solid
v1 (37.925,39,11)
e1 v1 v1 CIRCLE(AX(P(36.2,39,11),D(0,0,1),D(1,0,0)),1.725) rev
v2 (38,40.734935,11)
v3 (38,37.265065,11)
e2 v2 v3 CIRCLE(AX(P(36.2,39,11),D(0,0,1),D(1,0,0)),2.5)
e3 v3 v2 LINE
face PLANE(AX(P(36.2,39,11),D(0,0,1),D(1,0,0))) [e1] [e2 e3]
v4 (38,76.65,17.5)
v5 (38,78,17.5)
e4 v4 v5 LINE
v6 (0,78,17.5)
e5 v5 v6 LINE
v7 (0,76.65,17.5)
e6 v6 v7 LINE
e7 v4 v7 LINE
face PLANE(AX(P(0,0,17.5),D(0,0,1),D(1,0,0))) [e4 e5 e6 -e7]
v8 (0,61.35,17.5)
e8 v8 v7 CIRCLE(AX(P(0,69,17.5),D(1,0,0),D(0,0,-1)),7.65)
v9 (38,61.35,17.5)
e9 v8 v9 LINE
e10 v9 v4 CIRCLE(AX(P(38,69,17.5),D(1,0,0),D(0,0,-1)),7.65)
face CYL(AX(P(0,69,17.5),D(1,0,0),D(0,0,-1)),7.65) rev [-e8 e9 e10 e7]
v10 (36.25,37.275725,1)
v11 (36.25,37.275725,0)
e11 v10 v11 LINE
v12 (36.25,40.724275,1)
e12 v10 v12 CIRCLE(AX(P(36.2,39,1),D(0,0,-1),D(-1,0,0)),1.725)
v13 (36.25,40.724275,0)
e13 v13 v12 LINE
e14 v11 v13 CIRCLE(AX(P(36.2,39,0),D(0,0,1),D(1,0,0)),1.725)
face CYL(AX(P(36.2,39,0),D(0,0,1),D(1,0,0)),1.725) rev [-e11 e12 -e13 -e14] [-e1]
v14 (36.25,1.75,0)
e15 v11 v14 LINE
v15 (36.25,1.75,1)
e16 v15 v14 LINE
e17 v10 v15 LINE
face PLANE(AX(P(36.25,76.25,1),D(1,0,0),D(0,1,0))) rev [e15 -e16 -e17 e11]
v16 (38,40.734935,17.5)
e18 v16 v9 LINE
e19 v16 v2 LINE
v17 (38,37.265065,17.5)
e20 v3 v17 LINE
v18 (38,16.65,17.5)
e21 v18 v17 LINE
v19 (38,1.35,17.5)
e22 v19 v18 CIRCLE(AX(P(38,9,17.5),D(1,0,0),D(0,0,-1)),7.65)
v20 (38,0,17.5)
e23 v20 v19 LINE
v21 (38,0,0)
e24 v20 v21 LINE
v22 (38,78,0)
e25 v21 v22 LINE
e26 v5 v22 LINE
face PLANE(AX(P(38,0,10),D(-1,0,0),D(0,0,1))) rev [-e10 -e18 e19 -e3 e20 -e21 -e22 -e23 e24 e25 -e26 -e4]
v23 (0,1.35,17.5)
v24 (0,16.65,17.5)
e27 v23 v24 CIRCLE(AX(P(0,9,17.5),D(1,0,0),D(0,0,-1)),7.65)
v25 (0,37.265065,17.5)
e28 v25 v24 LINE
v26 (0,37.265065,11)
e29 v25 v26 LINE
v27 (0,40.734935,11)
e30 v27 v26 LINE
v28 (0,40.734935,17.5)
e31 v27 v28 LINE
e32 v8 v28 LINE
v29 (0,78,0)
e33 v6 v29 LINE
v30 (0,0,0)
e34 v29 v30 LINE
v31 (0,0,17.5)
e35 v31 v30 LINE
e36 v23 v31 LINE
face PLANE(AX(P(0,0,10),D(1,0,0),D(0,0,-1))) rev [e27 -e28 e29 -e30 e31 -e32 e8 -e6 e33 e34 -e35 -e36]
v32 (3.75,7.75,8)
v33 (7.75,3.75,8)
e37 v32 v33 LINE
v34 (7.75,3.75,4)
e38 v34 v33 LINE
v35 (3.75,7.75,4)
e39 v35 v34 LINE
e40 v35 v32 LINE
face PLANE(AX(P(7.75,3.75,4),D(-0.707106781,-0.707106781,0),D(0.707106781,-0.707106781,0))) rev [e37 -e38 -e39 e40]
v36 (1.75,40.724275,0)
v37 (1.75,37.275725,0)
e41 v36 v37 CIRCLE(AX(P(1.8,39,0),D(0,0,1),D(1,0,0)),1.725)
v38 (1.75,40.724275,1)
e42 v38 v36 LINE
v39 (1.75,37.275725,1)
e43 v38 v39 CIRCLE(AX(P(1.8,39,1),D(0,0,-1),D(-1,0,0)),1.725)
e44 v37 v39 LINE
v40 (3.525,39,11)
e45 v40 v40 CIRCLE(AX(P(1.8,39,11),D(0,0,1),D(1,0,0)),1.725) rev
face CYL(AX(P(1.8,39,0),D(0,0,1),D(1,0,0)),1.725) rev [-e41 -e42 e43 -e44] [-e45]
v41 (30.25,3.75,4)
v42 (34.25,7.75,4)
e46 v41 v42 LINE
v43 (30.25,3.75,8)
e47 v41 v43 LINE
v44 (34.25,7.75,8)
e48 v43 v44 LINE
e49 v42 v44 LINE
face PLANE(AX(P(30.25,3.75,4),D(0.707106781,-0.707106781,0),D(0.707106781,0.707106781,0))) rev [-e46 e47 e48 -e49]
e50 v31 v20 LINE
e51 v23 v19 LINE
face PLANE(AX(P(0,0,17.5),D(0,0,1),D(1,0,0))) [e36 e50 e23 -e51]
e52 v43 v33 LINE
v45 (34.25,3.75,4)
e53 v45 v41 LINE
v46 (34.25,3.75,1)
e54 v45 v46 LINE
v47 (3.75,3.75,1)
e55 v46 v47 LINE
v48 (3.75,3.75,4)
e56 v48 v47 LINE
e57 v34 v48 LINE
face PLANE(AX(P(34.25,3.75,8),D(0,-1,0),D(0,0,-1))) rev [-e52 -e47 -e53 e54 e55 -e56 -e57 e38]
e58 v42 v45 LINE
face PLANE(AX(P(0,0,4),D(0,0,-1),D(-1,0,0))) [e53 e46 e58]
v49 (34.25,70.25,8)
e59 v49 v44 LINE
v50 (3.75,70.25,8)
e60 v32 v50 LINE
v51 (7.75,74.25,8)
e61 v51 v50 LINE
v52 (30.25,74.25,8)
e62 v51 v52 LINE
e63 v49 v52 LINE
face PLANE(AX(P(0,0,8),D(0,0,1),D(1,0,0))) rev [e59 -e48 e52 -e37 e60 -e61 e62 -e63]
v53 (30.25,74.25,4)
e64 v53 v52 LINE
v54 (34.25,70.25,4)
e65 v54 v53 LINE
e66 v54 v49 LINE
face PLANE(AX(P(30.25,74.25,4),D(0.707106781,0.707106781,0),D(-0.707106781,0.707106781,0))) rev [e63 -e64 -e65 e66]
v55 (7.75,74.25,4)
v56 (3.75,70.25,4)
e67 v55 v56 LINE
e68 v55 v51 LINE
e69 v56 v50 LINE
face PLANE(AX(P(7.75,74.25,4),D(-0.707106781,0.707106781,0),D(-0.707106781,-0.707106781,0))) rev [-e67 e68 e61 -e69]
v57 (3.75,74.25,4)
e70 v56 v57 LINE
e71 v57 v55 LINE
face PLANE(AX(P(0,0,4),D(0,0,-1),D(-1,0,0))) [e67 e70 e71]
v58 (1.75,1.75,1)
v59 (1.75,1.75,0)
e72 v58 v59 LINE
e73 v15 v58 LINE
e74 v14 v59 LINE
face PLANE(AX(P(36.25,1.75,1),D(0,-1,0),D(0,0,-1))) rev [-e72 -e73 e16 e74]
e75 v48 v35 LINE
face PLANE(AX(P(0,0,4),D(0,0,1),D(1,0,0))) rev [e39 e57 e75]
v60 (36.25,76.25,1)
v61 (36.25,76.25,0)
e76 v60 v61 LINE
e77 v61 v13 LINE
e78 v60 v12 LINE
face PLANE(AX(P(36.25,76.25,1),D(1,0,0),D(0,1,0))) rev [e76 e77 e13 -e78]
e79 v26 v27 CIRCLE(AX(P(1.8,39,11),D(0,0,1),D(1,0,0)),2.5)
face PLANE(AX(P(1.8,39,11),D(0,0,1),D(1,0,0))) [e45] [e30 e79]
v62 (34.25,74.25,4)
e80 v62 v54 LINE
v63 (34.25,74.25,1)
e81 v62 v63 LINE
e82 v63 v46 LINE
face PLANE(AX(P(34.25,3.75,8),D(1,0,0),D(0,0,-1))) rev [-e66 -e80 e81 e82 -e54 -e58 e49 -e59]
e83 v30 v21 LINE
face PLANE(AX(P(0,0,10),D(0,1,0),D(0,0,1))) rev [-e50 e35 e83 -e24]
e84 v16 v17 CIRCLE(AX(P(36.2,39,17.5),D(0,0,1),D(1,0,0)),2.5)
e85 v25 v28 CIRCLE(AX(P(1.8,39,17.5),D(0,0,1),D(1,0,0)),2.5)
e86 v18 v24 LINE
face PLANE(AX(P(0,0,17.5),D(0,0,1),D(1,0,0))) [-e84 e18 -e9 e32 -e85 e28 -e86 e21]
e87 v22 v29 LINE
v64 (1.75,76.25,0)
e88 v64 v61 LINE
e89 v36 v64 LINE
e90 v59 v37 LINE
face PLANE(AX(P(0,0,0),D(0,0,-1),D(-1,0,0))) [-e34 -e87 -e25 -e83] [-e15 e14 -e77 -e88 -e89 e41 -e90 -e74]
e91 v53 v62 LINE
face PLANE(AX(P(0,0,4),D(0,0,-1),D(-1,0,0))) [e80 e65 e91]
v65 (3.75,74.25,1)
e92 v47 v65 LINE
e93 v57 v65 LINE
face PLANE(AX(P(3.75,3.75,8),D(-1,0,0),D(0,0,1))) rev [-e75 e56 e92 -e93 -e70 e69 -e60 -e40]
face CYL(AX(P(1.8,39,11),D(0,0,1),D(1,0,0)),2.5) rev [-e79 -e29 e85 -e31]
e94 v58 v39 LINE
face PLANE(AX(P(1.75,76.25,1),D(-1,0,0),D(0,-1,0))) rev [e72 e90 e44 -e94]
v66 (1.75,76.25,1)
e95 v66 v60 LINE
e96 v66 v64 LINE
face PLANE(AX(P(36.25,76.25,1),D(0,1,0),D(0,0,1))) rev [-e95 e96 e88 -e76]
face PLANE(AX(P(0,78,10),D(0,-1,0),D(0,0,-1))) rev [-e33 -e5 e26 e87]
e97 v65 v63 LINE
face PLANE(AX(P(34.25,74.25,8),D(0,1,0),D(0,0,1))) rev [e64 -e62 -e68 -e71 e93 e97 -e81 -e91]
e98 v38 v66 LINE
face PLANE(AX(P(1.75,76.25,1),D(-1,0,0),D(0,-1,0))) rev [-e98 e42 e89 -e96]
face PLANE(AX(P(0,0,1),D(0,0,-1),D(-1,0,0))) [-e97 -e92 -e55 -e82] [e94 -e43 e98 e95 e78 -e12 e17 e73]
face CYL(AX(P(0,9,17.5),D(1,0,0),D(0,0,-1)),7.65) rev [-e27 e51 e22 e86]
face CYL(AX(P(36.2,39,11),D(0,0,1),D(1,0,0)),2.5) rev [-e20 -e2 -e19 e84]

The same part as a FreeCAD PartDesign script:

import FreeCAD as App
import Part
import Sketcher
from FreeCAD import Vector
Q = App.Units.Quantity


def add_polygon(sketch, points):
    """Adds a closed chain of lines whose ends are joined by coincident constraints."""
    first, n = sketch.GeometryCount, len(points)
    for a, b in zip(points, points[1:] + points[:1]):
        sketch.addGeometry(Part.LineSegment(App.Vector(*a, 0), App.Vector(*b, 0)), False)
    for i in range(n):
        sketch.addConstraint(Sketcher.Constraint("Coincident", first + i, 2, first + (i + 1) % n, 1))

doc = App.newDocument("Part")
params = doc.addObject("Spreadsheet::Sheet", "Params")
for row, (alias, value) in enumerate([
    ("sketch1_width", "38 mm"),
    ("sketch1_height", "78 mm"),
    ("pad1_length", "10 mm"),
    ("sketch2_width", "30.5 mm"),
    ("sketch2_height", "70.5 mm"),
    ("pocket1_length", "8 mm"),
    ("sketch3_width", "4 mm"),
    ("pad2_length", "4 mm"),
    ("sketch4_width", "38 mm"),
    ("sketch4_height", "78 mm"),
    ("pad3_length", "7.5 mm"),
    ("sketch5_diameter", "15.3 mm"),
    ("sketch6_width", "34.5 mm"),
    ("sketch6_width2", "30.5 mm"),
    ("sketch6_height", "74.5 mm"),
    ("sketch6_height2", "70.5 mm"),
    ("pocket3_length", "1 mm"),
    ("sketch7_diameter", "3.45 mm"),
    ("sketch8_diameter", "5 mm"),
    ("pocket5_length", "6.5 mm"),
], start=1):
    params.set(f"A{row}", alias)
    params.set(f"B{row}", "=" + value)
    params.setAlias(f"B{row}", alias)

body = doc.addObject("PartDesign::Body", "Body")

sketch1 = body.newObject("Sketcher::SketchObject", "Sketch")
sketch1.AttachmentSupport = (doc.getObject("XY_Plane"), [""])
sketch1.MapMode = "FlatFace"
add_polygon(sketch1, [(0, 78), (0, 0), (38, 0), (38, 78)])
sketch1.addConstraint([
    Sketcher.Constraint("Vertical", 0),
    Sketcher.Constraint("Horizontal", 1),
    Sketcher.Constraint("Vertical", 2),
    Sketcher.Constraint("Horizontal", 3),
    Sketcher.Constraint("Coincident", 0, 2, -1, 1),
    Sketcher.Constraint("DistanceX", 1, 1, 1, 2, Q("38 mm")),
    Sketcher.Constraint("DistanceY", 0, 2, 0, 1, Q("78 mm")),
])
sketch1.setExpression("Constraints[9]", "Params.sketch1_width")
sketch1.setExpression("Constraints[10]", "Params.sketch1_height")
pad1 = body.newObject("PartDesign::Pad", "Pad")
pad1.Profile = sketch1
pad1.setExpression("Length", "Params.pad1_length")

sketch2 = body.newObject("Sketcher::SketchObject", "Sketch001")
sketch2.AttachmentSupport = (doc.getObject("XY_Plane"), [""])
sketch2.MapMode = "FlatFace"
add_polygon(sketch2, [(34, 74), (34, 4), (4, 4), (4, 74)])
sketch2.addConstraint([
    Sketcher.Constraint("Vertical", 0),
    Sketcher.Constraint("Horizontal", 1),
    Sketcher.Constraint("Vertical", 2),
    Sketcher.Constraint("Horizontal", 3),
    Sketcher.Constraint("DistanceX", 1, 2, 1, 1, Q("30.5 mm")),
    Sketcher.Constraint("DistanceY", 0, 2, 0, 1, Q("70.5 mm")),
    Sketcher.Constraint("DistanceX", -1, 1, 0, 2, Q("34.25 mm")),
    Sketcher.Constraint("DistanceY", -1, 1, 0, 2, Q("3.75 mm")),
])
sketch2.setExpression("Constraints[8]", "Params.sketch2_width")
sketch2.setExpression("Constraints[9]", "Params.sketch2_height")
pocket1 = body.newObject("PartDesign::Pocket", "Pocket")
pocket1.Profile = sketch2
pocket1.setExpression("Length", "Params.pocket1_length")
pocket1.Reversed = True

sketch3 = body.newObject("Sketcher::SketchObject", "Sketch002")
sketch3.AttachmentSupport = (doc.getObject("XY_Plane"), [""])
sketch3.MapMode = "FlatFace"
sketch3.AttachmentOffset = App.Placement(Vector(0, 0, 8), App.Rotation())
add_polygon(sketch3, [(34.2, 70.2), (30.2, 74.2), (34.2, 74.2)])
add_polygon(sketch3, [(3.8, 70.2), (3.8, 74.2), (7.8, 74.2)])
add_polygon(sketch3, [(3.8, 3.8), (3.8, 7.8), (7.8, 3.8)])
add_polygon(sketch3, [(34.2, 7.8), (34.2, 3.8), (30.2, 3.8)])
sketch3.addConstraint([
    Sketcher.Constraint("Horizontal", 1),
    Sketcher.Constraint("Vertical", 2),
    Sketcher.Constraint("Vertical", 3),
    Sketcher.Constraint("Horizontal", 4),
    Sketcher.Constraint("Vertical", 6),
    Sketcher.Constraint("Horizontal", 8),
    Sketcher.Constraint("Vertical", 9),
    Sketcher.Constraint("Horizontal", 10),
    Sketcher.Constraint("Perpendicular", 0, 5),
    Sketcher.Constraint("Perpendicular", 5, 7),
    Sketcher.Constraint("Perpendicular", 7, 11),
    Sketcher.Constraint("Horizontal", 1, 2, 3, 2),
    Sketcher.Constraint("Horizontal", 2, 2, 5, 2),
    Sketcher.Constraint("Horizontal", 8, 2, 9, 2),
    Sketcher.Constraint("Horizontal", 6, 2, 11, 2),
    Sketcher.Constraint("Vertical", 5, 2, 6, 2),
    Sketcher.Constraint("Vertical", 4, 2, 7, 2),
    Sketcher.Constraint("Vertical", 2, 2, 9, 2),
    Sketcher.Constraint("Vertical", 0, 2, 10, 2),
    Sketcher.Constraint("DistanceX", 1, 1, 1, 2, Q("4 mm")),
    Sketcher.Constraint("DistanceX", 3, 2, 0, 2, Q("26.5 mm")),
    Sketcher.Constraint("DistanceY", 6, 2, 5, 2, Q("62.5 mm")),
    Sketcher.Constraint("DistanceX", -1, 1, 0, 2, Q("30.25 mm")),
    Sketcher.Constraint("DistanceY", -1, 1, 0, 2, Q("74.25 mm")),
])
sketch3.setExpression("Constraints[31]", "Params.sketch3_width")
pad2 = body.newObject("PartDesign::Pad", "Pad001")
pad2.Profile = sketch3
pad2.setExpression("Length", "Params.pad2_length")
pad2.Reversed = True

sketch4 = body.newObject("Sketcher::SketchObject", "Sketch003")
sketch4.AttachmentSupport = (doc.getObject("XY_Plane"), [""])
sketch4.MapMode = "FlatFace"
sketch4.AttachmentOffset = App.Placement(Vector(0, 0, 10), App.Rotation())
add_polygon(sketch4, [(0, 78), (0, 0), (38, 0), (38, 78)])
sketch4.addConstraint([
    Sketcher.Constraint("Vertical", 0),
    Sketcher.Constraint("Horizontal", 1),
    Sketcher.Constraint("Vertical", 2),
    Sketcher.Constraint("Horizontal", 3),
    Sketcher.Constraint("Coincident", 0, 2, -1, 1),
    Sketcher.Constraint("DistanceX", 1, 1, 1, 2, Q("38 mm")),
    Sketcher.Constraint("DistanceY", 0, 2, 0, 1, Q("78 mm")),
])
sketch4.setExpression("Constraints[9]", "Params.sketch4_width")
sketch4.setExpression("Constraints[10]", "Params.sketch4_height")
pad3 = body.newObject("PartDesign::Pad", "Pad002")
pad3.Profile = sketch4
pad3.setExpression("Length", "Params.pad3_length")

sketch5 = body.newObject("Sketcher::SketchObject", "Sketch004")
sketch5.AttachmentSupport = (doc.getObject("YZ_Plane"), [""])
sketch5.MapMode = "FlatFace"
sketch5.AttachmentOffset = App.Placement(Vector(0, 0, 38), App.Rotation())
sketch5.addGeometry([
    Part.Circle(Vector(9, 18, 0), Vector(0, 0, 1), 8),
    Part.Circle(Vector(69, 18, 0), Vector(0, 0, 1), 8),
], False)
sketch5.addConstraint([
    Sketcher.Constraint("Equal", 0, 1),
    Sketcher.Constraint("Horizontal", 0, 3, 1, 3),
    Sketcher.Constraint("Diameter", 0, Q("15.3 mm")),
    Sketcher.Constraint("DistanceX", -1, 1, 0, 3, Q("9 mm")),
    Sketcher.Constraint("DistanceX", -1, 1, 1, 3, Q("69 mm")),
    Sketcher.Constraint("DistanceY", -1, 1, 0, 3, Q("17.5 mm")),
])
sketch5.setExpression("Constraints[2]", "Params.sketch5_diameter")
pocket2 = body.newObject("PartDesign::Pocket", "Pocket001")
pocket2.Profile = sketch5
pocket2.Type = "ThroughAll"

sketch6 = body.newObject("Sketcher::SketchObject", "Sketch005")
sketch6.AttachmentSupport = (doc.getObject("XY_Plane"), [""])
sketch6.MapMode = "FlatFace"
add_polygon(sketch6, [(36, 76), (36, 2), (2, 2), (2, 76)])
add_polygon(sketch6, [(4, 4), (34, 4), (34, 74), (4, 74)])
sketch6.addConstraint([
    Sketcher.Constraint("Vertical", 0),
    Sketcher.Constraint("Horizontal", 1),
    Sketcher.Constraint("Vertical", 2),
    Sketcher.Constraint("Horizontal", 3),
    Sketcher.Constraint("Horizontal", 4),
    Sketcher.Constraint("Vertical", 5),
    Sketcher.Constraint("Horizontal", 6),
    Sketcher.Constraint("Vertical", 7),
    Sketcher.Constraint("DistanceX", 1, 2, 1, 1, Q("34.5 mm")),
    Sketcher.Constraint("DistanceX", 4, 1, 4, 2, Q("30.5 mm")),
    Sketcher.Constraint("DistanceY", 0, 2, 0, 1, Q("74.5 mm")),
    Sketcher.Constraint("DistanceY", 5, 1, 5, 2, Q("70.5 mm")),
    Sketcher.Constraint("DistanceX", 4, 2, 0, 2, Q("2 mm")),
    Sketcher.Constraint("DistanceY", 0, 2, 4, 2, Q("2 mm")),
    Sketcher.Constraint("DistanceX", -1, 1, 0, 2, Q("36.25 mm")),
    Sketcher.Constraint("DistanceY", -1, 1, 0, 2, Q("1.75 mm")),
])
sketch6.setExpression("Constraints[16]", "Params.sketch6_width")
sketch6.setExpression("Constraints[17]", "Params.sketch6_width2")
sketch6.setExpression("Constraints[18]", "Params.sketch6_height")
sketch6.setExpression("Constraints[19]", "Params.sketch6_height2")
pocket3 = body.newObject("PartDesign::Pocket", "Pocket002")
pocket3.Profile = sketch6
pocket3.setExpression("Length", "Params.pocket3_length")
pocket3.Reversed = True

sketch7 = body.newObject("Sketcher::SketchObject", "Sketch006")
sketch7.AttachmentSupport = (doc.getObject("XY_Plane"), [""])
sketch7.MapMode = "FlatFace"
sketch7.AttachmentOffset = App.Placement(Vector(0, 0, 17.5), App.Rotation())
sketch7.addGeometry([
    Part.Circle(Vector(1.8, 39, 0), Vector(0, 0, 1), 1.7),
    Part.Circle(Vector(36.2, 39, 0), Vector(0, 0, 1), 1.7),
], False)
sketch7.addConstraint([
    Sketcher.Constraint("Equal", 0, 1),
    Sketcher.Constraint("Horizontal", 0, 3, 1, 3),
    Sketcher.Constraint("Diameter", 0, Q("3.45 mm")),
    Sketcher.Constraint("DistanceY", -1, 1, 0, 3, Q("39 mm")),
    Sketcher.Constraint("DistanceX", -1, 1, 0, 3, Q("1.8 mm")),
    Sketcher.Constraint("DistanceX", -1, 1, 1, 3, Q("36.2 mm")),
])
sketch7.setExpression("Constraints[2]", "Params.sketch7_diameter")
pocket4 = body.newObject("PartDesign::Pocket", "Pocket003")
pocket4.Profile = sketch7
pocket4.Type = "ThroughAll"

sketch8 = body.newObject("Sketcher::SketchObject", "Sketch007")
sketch8.AttachmentSupport = (doc.getObject("XY_Plane"), [""])
sketch8.MapMode = "FlatFace"
sketch8.AttachmentOffset = App.Placement(Vector(0, 0, 17.5), App.Rotation())
sketch8.addGeometry([
    Part.Circle(Vector(1.8, 39, 0), Vector(0, 0, 1), 2.5),
    Part.Circle(Vector(36.2, 39, 0), Vector(0, 0, 1), 2.5),
], False)
sketch8.addConstraint([
    Sketcher.Constraint("Equal", 0, 1),
    Sketcher.Constraint("Horizontal", 0, 3, 1, 3),
    Sketcher.Constraint("Diameter", 0, Q("5 mm")),
    Sketcher.Constraint("DistanceY", -1, 1, 0, 3, Q("39 mm")),
    Sketcher.Constraint("DistanceX", -1, 1, 0, 3, Q("1.8 mm")),
    Sketcher.Constraint("DistanceX", -1, 1, 1, 3, Q("36.2 mm")),
])
sketch8.setExpression("Constraints[2]", "Params.sketch8_diameter")
pocket5 = body.newObject("PartDesign::Pocket", "Pocket004")
pocket5.Profile = sketch8
pocket5.setExpression("Length", "Params.pocket5_length")

doc.recompute()
